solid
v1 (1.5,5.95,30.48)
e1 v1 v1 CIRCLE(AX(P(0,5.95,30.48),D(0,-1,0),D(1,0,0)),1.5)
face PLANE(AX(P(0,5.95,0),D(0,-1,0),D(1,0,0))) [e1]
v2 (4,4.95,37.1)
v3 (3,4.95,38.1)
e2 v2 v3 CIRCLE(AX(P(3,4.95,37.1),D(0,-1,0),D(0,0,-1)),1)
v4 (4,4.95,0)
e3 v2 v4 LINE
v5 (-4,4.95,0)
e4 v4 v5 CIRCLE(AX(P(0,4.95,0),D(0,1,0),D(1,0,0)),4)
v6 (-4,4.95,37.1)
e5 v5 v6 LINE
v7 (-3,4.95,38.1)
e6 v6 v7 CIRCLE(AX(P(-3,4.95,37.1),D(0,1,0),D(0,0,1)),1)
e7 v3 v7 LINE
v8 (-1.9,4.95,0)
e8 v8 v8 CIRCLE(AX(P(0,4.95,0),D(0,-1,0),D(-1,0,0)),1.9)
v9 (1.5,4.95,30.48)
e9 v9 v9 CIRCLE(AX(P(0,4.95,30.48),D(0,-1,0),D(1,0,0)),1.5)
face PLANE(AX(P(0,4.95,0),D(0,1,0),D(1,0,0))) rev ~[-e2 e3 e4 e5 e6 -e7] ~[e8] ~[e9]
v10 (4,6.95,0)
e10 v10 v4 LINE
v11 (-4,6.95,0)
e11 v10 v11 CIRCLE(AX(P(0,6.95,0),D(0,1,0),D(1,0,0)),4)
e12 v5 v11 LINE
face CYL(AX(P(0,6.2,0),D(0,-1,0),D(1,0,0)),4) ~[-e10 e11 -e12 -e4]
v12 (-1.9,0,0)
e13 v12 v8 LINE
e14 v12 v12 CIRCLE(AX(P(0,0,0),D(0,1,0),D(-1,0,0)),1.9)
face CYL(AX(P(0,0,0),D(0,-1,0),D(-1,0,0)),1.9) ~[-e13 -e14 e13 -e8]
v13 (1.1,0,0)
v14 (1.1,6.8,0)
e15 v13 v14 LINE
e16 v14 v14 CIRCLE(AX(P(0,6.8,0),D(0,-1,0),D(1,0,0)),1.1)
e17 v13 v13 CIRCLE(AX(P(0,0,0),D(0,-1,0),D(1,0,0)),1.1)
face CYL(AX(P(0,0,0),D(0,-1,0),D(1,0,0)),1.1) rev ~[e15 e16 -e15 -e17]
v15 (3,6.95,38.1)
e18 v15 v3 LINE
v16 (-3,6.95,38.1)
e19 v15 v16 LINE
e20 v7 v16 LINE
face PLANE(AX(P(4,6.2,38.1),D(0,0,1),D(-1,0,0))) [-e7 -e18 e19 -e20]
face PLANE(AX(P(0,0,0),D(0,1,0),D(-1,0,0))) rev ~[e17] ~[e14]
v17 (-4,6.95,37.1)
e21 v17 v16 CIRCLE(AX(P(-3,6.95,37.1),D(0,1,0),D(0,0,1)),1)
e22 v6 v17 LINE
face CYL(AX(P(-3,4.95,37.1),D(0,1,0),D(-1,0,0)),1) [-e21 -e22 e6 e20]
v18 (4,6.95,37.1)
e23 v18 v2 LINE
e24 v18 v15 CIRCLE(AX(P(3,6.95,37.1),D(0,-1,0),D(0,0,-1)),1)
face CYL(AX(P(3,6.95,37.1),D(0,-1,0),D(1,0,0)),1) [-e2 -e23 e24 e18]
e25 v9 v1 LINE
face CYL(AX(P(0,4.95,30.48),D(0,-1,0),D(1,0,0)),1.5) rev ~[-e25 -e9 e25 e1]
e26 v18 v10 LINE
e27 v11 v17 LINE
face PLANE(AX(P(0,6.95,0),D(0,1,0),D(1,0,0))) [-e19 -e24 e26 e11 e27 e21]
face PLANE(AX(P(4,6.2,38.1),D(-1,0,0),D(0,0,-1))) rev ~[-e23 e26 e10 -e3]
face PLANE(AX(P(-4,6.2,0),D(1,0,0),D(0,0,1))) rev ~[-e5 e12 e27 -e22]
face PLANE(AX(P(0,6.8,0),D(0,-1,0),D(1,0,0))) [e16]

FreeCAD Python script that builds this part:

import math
import FreeCAD as App
import Part
import Sketcher


def edges_at(feature, points):
    """Names of the edges that pass closest to the given points."""
    edges = feature.Shape.Edges
    near = lambda p: min(range(len(edges)), key=lambda i: edges[i].distToShape(Part.Vertex(*p))[0])
    return sorted({f"Edge{near(p) + 1}" for p in points})

doc = App.newDocument("Part")
params = doc.addObject("Spreadsheet::Sheet", "Params")
for row, (alias, value) in enumerate([
    ("sketch1_diameter", "3.8 mm"),
    ("pad1_length", "6.2 mm"),
    ("sketch2_radius", "4 mm"),
    ("sketch2_height", "38.1 mm"),
    ("pad2_length", "0.75 mm"),
    ("pad2_length2", "1.25 mm"),
    ("sketch3_diameter", "3 mm"),
    ("pocket1_length", "1 mm"),
    ("fillet_radius", "1 mm"),
    ("sketch4_diameter", "2.2 mm"),
    ("pocket2_length", "6.8 mm"),
], start=1):
    params.set(f"A{row}", alias)
    params.set(f"B{row}", "=" + value)
    params.setAlias(f"B{row}", alias)

body = doc.addObject("PartDesign::Body", "Body")

# Sketch on XZ plane
sketch1 = body.newObject("Sketcher::SketchObject", "Sketch")
sketch1.AttachmentSupport = (doc.getObject("XZ_Plane"), [""])
sketch1.MapMode = "FlatFace"
sketch1.addGeometry(Part.Circle(App.Vector(0, 0, 0), App.Vector(0, 0, 1), 1.9), False)
sketch1.addConstraint(Sketcher.Constraint("Coincident", 0, 3, -1, 1))
sketch1.addConstraint(Sketcher.Constraint("Diameter", 0, 3.8))
sketch1.setExpression("Constraints[1]", "Params.sketch1_diameter")
pad1 = body.newObject("PartDesign::Pad", "Pad")
pad1.Profile = sketch1
pad1.setExpression("Length", "Params.pad1_length")
pad1.Reversed = True

# Sketch on XZ plane
sketch2 = body.newObject("Sketcher::SketchObject", "Sketch001")
sketch2.AttachmentSupport = (doc.getObject("XZ_Plane"), [""])
sketch2.MapMode = "FlatFace"
sketch2.AttachmentOffset = App.Placement(App.Vector(0, 0, -6.2), App.Rotation())
sketch2.addGeometry(Part.ArcOfCircle(Part.Circle(App.Vector(0, 0, 0), App.Vector(0, 0, 1), 4), math.radians(180), math.radians(360)), False)
sketch2.addGeometry(Part.LineSegment(App.Vector(-4, 0, 0), App.Vector(-4, 38.1, 0)), False)
sketch2.addGeometry(Part.LineSegment(App.Vector(-4, 38.1, 0), App.Vector(4, 38.1, 0)), False)
sketch2.addGeometry(Part.LineSegment(App.Vector(4, 38.1, 0), App.Vector(4, 0, 0)), False)
sketch2.addConstraint(Sketcher.Constraint("Tangent", 0, 1, 1, 1))
sketch2.addConstraint(Sketcher.Constraint("Coincident", 1, 2, 2, 1))
sketch2.addConstraint(Sketcher.Constraint("Coincident", 2, 2, 3, 1))
sketch2.addConstraint(Sketcher.Constraint("Tangent", 3, 2, 0, 2))
sketch2.addConstraint(Sketcher.Constraint("Vertical", 1))
sketch2.addConstraint(Sketcher.Constraint("Horizontal", 2))
sketch2.addConstraint(Sketcher.Constraint("Vertical", 3))
sketch2.addConstraint(Sketcher.Constraint("Coincident", 0, 3, -1, 1))
sketch2.addConstraint(Sketcher.Constraint("Radius", 0, 4.0))
sketch2.addConstraint(Sketcher.Constraint("DistanceY", 1, 1, 1, 2, 38.1))
sketch2.setExpression("Constraints[8]", "Params.sketch2_radius")
sketch2.setExpression("Constraints[9]", "Params.sketch2_height")
pad2 = body.newObject("PartDesign::Pad", "Pad001")
pad2.Profile = sketch2
pad2.Type = "TwoLengths"
pad2.setExpression("Length", "Params.pad2_length")
pad2.setExpression("Length2", "Params.pad2_length2")
pad2.Reversed = True

# Sketch on XZ plane
sketch3 = body.newObject("Sketcher::SketchObject", "Sketch002")
sketch3.AttachmentSupport = (doc.getObject("XZ_Plane"), [""])
sketch3.MapMode = "FlatFace"
sketch3.AttachmentOffset = App.Placement(App.Vector(0, 0, -4.95), App.Rotation())
sketch3.addGeometry(Part.Circle(App.Vector(0, 30.5, 0), App.Vector(0, 0, 1), 1.5), False)
sketch3.addConstraint(Sketcher.Constraint("PointOnObject", 0, 3, -2))
sketch3.addConstraint(Sketcher.Constraint("Diameter", 0, 3.0))
sketch3.addConstraint(Sketcher.Constraint("DistanceY", -1, 1, 0, 3, 30.48))
sketch3.setExpression("Constraints[1]", "Params.sketch3_diameter")
pocket1 = body.newObject("PartDesign::Pocket", "Pocket")
pocket1.Profile = sketch3
pocket1.setExpression("Length", "Params.pocket1_length")
doc.recompute()

fillet = body.newObject("PartDesign::Fillet", "Fillet")
fillet.Base = (pocket1, edges_at(pocket1, [(-4, 5.95, 38.1), (4, 5.95, 38.1)]))
fillet.setExpression("Radius", "Params.fillet_radius")

# Sketch on XZ plane
sketch4 = body.newObject("Sketcher::SketchObject", "Sketch003")
sketch4.AttachmentSupport = (doc.getObject("XZ_Plane"), [""])
sketch4.MapMode = "FlatFace"
sketch4.addGeometry(Part.Circle(App.Vector(0, 0, 0), App.Vector(0, 0, 1), 1.1), False)
sketch4.addConstraint(Sketcher.Constraint("Coincident", 0, 3, -1, 1))
sketch4.addConstraint(Sketcher.Constraint("Diameter", 0, 2.2))
sketch4.setExpression("Constraints[1]", "Params.sketch4_diameter")
pocket2 = body.newObject("PartDesign::Pocket", "Pocket001")
pocket2.Profile = sketch4
pocket2.setExpression("Length", "Params.pocket2_length")

doc.recompute()
